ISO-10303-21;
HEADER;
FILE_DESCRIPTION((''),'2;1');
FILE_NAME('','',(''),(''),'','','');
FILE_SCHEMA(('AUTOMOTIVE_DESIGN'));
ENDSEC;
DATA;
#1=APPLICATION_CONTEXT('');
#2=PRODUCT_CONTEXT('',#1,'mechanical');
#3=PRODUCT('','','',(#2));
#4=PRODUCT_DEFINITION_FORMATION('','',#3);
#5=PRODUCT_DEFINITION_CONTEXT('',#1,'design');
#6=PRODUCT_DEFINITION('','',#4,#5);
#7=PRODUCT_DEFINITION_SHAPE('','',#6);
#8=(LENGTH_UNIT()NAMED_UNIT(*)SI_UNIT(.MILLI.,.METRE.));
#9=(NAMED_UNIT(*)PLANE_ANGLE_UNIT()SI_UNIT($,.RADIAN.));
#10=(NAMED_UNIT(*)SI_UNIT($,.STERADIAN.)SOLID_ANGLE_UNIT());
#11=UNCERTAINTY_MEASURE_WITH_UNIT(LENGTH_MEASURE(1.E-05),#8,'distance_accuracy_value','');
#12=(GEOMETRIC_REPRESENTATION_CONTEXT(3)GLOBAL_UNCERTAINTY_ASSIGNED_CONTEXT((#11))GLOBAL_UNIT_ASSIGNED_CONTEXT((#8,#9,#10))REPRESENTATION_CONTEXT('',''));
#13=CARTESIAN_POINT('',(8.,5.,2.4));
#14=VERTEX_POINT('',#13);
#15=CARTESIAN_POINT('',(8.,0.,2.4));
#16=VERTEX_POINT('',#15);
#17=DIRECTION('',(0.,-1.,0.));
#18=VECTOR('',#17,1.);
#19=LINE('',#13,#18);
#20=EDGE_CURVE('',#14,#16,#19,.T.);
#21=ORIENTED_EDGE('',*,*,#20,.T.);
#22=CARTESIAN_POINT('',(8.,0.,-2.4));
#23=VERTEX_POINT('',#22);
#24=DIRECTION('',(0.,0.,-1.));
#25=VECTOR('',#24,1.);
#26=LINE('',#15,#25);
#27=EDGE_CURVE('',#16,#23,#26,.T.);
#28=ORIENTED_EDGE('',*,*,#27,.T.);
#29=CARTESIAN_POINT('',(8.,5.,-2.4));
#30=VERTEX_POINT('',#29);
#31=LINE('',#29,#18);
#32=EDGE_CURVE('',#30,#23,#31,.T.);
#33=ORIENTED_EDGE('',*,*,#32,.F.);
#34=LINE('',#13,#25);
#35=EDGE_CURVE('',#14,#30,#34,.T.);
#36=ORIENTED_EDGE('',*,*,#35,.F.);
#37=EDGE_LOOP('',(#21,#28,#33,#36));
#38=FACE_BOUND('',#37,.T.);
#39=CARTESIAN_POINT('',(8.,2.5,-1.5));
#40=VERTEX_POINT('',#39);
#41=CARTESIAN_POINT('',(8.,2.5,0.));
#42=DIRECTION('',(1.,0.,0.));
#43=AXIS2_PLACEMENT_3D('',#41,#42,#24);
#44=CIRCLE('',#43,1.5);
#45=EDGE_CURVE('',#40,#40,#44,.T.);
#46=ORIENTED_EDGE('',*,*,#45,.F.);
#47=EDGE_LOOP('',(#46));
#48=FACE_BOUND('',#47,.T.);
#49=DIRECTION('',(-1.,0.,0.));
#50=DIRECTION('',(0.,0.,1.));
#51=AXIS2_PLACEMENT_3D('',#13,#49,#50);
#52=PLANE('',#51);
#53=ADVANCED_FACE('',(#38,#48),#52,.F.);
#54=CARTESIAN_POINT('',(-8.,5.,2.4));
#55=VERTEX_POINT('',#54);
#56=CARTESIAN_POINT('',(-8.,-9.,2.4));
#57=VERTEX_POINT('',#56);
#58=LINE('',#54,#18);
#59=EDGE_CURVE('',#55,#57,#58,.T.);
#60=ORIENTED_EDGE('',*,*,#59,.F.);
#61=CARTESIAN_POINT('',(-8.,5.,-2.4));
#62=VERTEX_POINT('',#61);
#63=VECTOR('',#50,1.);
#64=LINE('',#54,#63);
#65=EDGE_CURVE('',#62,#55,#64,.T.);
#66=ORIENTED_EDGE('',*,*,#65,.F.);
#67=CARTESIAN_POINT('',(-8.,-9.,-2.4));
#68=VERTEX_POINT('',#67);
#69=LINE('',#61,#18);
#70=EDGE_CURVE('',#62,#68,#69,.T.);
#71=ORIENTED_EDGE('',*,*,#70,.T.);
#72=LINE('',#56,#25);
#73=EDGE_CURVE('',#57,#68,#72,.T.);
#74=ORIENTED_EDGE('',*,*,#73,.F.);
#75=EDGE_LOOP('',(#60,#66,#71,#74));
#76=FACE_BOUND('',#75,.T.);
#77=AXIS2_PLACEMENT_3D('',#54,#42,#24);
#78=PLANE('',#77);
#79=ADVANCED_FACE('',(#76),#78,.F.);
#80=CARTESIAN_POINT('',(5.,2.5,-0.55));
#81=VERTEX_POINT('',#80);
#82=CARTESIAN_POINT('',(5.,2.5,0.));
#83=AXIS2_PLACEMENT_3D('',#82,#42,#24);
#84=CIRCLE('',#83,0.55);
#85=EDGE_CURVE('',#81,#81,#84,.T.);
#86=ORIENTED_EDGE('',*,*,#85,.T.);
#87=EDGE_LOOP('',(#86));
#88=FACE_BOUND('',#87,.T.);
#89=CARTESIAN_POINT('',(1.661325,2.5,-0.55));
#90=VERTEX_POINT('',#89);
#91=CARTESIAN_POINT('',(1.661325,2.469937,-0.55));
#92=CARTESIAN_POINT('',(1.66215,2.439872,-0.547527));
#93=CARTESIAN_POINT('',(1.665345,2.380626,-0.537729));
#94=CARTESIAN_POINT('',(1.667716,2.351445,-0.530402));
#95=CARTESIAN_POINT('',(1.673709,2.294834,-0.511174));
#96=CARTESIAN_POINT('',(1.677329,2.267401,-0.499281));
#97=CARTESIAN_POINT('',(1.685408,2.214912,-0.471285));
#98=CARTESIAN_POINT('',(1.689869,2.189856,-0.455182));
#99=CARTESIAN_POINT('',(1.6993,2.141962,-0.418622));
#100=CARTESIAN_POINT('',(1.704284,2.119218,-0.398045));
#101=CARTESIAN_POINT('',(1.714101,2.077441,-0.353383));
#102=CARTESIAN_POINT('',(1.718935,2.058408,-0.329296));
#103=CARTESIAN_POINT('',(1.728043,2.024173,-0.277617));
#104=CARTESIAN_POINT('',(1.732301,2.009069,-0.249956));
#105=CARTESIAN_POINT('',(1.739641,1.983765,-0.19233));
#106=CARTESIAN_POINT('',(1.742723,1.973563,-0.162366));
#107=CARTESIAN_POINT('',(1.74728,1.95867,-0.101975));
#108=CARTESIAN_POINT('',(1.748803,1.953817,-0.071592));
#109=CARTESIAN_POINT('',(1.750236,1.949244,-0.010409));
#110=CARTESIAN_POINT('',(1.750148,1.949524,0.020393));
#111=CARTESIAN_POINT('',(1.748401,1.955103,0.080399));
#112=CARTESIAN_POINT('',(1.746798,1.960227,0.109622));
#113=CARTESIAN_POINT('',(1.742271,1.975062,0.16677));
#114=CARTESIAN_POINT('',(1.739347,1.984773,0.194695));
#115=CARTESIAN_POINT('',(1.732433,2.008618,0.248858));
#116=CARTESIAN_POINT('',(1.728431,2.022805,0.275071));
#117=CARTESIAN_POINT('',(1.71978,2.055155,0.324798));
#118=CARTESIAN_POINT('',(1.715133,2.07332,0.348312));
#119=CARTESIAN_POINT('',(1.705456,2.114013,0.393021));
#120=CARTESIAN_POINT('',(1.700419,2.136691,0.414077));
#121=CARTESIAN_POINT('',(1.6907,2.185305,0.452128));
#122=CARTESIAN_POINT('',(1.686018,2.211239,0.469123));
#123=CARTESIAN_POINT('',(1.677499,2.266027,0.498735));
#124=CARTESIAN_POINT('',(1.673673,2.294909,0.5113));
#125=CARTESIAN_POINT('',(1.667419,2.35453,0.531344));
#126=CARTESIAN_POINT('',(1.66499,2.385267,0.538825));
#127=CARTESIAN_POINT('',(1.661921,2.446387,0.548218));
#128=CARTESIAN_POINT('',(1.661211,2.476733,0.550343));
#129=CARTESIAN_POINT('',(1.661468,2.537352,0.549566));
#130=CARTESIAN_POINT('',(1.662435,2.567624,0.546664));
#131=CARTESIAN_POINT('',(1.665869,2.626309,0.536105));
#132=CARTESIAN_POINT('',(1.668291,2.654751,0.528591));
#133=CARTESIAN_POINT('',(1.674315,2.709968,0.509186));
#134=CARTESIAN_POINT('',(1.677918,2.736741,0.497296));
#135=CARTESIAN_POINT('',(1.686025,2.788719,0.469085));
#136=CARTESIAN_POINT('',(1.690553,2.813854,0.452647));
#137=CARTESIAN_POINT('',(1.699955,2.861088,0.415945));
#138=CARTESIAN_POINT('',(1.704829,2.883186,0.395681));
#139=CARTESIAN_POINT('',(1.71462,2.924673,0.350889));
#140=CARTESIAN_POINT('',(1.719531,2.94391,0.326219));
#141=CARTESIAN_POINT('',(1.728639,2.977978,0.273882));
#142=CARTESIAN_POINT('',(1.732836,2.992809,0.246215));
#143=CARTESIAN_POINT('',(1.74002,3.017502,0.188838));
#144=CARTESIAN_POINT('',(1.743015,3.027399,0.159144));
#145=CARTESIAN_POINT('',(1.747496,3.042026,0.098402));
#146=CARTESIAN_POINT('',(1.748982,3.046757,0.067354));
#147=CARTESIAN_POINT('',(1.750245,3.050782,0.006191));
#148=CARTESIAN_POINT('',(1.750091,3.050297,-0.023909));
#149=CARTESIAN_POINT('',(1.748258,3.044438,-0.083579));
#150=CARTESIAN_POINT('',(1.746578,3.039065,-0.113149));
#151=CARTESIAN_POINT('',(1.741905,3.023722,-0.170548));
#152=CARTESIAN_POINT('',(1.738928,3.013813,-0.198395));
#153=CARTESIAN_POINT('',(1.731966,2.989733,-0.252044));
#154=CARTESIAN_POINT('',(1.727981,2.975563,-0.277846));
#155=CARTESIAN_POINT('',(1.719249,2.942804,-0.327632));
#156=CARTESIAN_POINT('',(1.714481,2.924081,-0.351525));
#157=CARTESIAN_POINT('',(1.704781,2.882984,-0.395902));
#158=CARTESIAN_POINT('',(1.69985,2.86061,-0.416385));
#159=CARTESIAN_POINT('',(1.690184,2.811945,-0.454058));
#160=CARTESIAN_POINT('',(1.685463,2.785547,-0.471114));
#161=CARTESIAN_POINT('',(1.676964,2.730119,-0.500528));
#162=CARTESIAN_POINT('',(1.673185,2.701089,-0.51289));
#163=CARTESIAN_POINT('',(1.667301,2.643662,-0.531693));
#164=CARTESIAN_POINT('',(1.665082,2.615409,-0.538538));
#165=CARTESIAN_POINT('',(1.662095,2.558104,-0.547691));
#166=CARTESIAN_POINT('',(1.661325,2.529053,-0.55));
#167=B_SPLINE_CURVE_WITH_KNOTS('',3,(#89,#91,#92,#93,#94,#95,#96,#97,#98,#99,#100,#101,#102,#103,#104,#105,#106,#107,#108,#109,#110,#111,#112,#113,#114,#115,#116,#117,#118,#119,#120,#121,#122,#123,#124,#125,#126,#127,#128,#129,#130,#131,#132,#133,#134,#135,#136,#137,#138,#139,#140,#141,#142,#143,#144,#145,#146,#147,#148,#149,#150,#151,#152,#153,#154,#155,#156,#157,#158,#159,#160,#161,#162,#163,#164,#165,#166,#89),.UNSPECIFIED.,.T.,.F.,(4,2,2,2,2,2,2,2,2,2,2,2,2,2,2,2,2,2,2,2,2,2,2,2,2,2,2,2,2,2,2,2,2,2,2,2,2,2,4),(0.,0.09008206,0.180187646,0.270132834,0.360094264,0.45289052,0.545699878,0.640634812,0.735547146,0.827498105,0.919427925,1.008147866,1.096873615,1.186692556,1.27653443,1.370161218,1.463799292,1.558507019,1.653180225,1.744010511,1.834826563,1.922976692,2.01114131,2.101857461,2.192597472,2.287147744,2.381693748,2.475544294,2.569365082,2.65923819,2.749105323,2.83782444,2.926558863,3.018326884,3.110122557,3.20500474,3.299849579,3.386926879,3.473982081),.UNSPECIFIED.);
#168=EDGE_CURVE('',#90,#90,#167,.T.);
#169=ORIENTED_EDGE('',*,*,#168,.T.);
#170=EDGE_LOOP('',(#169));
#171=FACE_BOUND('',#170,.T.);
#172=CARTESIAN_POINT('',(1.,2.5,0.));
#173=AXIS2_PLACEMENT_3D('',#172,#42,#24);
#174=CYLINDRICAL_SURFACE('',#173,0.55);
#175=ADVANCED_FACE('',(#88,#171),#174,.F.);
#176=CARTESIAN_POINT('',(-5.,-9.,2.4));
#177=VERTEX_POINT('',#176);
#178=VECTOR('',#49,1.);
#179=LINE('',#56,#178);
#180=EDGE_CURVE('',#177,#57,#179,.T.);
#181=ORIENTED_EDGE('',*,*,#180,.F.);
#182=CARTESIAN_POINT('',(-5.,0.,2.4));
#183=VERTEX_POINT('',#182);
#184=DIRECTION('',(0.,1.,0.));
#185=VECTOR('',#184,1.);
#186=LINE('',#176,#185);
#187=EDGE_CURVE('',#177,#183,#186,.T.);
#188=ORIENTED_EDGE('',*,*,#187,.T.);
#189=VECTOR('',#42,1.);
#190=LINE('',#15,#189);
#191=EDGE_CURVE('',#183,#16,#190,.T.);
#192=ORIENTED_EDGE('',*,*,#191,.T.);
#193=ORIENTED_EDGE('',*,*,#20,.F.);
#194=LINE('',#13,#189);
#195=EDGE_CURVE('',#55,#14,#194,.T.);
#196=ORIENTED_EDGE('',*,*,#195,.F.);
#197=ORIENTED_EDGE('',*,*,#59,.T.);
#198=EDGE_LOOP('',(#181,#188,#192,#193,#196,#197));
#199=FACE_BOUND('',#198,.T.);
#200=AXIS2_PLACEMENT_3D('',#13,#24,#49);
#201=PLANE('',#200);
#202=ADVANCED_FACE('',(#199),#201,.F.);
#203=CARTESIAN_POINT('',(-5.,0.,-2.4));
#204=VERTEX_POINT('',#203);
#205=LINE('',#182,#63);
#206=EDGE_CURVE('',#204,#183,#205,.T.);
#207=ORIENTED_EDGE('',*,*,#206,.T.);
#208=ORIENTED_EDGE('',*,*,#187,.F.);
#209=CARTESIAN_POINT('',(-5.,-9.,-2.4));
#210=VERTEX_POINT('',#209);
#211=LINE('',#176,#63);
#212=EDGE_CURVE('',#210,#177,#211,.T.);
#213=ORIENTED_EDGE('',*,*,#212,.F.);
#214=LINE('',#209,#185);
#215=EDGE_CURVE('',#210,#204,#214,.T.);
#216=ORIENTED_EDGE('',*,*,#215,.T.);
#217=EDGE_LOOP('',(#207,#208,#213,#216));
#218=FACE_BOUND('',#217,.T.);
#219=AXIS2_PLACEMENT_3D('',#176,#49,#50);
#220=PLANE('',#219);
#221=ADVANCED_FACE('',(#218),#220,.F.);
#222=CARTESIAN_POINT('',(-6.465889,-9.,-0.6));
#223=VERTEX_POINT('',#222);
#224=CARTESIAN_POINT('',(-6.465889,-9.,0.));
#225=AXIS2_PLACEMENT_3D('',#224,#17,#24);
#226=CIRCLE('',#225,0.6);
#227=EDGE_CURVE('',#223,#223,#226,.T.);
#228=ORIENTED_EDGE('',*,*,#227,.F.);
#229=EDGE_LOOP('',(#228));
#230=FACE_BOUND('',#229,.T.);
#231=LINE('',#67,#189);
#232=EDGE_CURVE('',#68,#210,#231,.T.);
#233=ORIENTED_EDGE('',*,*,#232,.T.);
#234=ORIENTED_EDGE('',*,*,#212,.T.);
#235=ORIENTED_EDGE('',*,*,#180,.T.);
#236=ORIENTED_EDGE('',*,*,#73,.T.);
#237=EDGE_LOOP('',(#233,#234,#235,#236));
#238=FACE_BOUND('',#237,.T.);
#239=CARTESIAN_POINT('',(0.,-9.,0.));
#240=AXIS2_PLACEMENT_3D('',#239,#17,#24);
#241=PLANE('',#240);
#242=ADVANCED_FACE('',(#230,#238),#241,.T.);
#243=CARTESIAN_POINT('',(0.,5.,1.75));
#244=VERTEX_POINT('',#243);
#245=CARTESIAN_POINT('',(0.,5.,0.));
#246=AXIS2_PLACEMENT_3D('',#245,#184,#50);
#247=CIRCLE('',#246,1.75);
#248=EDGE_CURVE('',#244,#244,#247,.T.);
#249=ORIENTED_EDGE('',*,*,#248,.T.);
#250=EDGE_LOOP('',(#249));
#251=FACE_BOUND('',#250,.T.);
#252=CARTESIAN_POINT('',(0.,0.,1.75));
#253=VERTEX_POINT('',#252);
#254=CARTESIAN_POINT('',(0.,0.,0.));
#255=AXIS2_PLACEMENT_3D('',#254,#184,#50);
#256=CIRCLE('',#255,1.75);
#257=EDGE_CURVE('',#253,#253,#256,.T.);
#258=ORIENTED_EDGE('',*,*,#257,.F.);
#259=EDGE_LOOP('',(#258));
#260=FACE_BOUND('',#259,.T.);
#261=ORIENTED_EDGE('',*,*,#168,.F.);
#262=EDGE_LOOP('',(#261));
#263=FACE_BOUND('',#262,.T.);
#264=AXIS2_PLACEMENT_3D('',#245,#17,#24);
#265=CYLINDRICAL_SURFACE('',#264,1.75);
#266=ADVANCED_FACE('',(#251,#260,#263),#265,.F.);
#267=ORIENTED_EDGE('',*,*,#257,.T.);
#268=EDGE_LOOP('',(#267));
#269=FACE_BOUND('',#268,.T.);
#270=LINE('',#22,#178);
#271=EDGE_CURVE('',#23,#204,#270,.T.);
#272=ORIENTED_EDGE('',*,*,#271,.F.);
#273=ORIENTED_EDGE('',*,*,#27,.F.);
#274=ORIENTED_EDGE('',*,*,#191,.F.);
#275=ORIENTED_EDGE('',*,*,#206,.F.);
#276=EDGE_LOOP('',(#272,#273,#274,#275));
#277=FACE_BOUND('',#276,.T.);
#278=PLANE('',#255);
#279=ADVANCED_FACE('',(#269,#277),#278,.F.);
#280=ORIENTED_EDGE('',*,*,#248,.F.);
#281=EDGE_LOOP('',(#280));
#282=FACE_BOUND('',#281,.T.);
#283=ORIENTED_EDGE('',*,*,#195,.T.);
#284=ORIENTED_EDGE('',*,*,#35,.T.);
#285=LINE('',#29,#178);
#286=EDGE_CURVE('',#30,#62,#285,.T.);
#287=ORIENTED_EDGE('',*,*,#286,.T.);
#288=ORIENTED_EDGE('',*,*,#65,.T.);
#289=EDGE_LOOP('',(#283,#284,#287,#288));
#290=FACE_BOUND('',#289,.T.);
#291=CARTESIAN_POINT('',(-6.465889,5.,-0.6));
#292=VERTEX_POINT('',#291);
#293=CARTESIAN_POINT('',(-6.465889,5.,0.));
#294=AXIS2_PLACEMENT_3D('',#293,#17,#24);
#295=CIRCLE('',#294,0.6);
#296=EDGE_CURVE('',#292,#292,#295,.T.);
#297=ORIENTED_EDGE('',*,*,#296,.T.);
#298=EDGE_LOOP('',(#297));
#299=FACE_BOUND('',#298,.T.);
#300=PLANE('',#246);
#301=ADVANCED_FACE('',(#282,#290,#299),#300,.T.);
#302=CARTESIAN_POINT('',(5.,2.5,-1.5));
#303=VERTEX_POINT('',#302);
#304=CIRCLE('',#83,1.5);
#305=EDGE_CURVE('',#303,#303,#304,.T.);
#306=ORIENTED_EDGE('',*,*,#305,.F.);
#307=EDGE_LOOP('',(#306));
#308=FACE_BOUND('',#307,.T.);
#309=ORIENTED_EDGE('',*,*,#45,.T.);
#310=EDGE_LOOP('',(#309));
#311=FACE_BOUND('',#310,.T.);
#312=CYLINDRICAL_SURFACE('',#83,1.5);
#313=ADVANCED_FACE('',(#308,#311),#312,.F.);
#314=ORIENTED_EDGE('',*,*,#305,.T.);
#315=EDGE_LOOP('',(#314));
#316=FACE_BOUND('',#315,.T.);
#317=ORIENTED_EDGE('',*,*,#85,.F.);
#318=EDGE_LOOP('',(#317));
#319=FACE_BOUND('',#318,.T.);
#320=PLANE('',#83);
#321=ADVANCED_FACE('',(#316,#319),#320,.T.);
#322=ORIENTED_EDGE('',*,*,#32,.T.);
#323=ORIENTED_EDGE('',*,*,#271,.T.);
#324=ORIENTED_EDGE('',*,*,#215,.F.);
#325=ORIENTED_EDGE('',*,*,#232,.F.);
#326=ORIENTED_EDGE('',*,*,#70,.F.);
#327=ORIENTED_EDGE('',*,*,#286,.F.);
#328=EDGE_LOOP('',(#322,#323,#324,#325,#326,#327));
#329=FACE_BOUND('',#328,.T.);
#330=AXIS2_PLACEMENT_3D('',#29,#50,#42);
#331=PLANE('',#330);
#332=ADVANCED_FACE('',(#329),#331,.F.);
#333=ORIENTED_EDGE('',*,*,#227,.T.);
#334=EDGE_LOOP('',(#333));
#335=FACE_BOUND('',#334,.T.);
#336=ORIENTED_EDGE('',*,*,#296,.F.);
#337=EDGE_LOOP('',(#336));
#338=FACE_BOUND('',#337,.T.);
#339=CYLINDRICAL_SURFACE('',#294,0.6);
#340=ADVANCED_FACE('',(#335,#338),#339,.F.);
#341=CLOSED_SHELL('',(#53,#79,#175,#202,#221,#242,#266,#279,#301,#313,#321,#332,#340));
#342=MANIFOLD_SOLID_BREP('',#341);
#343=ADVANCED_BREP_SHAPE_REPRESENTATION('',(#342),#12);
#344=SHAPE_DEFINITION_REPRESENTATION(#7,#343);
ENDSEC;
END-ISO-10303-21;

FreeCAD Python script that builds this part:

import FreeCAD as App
import Part
import Sketcher

V = App.Vector
Q = App.Units.Quantity


def add_polygon(sketch, points):
    """Adds a closed chain of lines whose ends are joined by coincident constraints."""
    first, n = sketch.GeometryCount, len(points)
    for a, b in zip(points, points[1:] + points[:1]):
        sketch.addGeometry(Part.LineSegment(App.Vector(*a, 0), App.Vector(*b, 0)), False)
    for i in range(n):
        sketch.addConstraint(Sketcher.Constraint("Coincident", first + i, 2, first + (i + 1) % n, 1))

doc = App.newDocument("Part")
body = doc.addObject("PartDesign::Body", "Body")

# Sketch on XZ plane
sketch1 = body.newObject("Sketcher::SketchObject", "Sketch")
sketch1.AttachmentSupport = (doc.getObject("XZ_Plane"), [""])
sketch1.MapMode = "FlatFace"
add_polygon(sketch1, [(-8, -2.4), (-8, 2.4), (8, 2.4), (8, -2.4)])  # lines 0-3
sketch1.addGeometry(Part.Circle(V(0, 0, 0), V(0, 0, 1), 1.75), False)  # 4
sketch1.addConstraint(Sketcher.Constraint("Vertical", 0))
sketch1.addConstraint(Sketcher.Constraint("Horizontal", 1))
sketch1.addConstraint(Sketcher.Constraint("Vertical", 2))
sketch1.addConstraint(Sketcher.Constraint("Horizontal", 3))
sketch1.addConstraint(Sketcher.Constraint("Coincident", 4, 3, -1, 1))
sketch1.addConstraint(Sketcher.Constraint("Symmetric", 0, 2, 2, 2, -1, 1))
sketch1.addConstraint(Sketcher.Constraint("Diameter", 4, Q("3.5 mm")))
sketch1.addConstraint(Sketcher.Constraint("DistanceX", 1, 1, 1, 2, Q("16 mm")))
sketch1.addConstraint(Sketcher.Constraint("DistanceY", 0, 1, 0, 2, Q("4.8 mm")))
pad1 = body.newObject("PartDesign::Pad", "Pad")
pad1.Profile = sketch1
pad1.Length = 5
pad1.Reversed = True

# Sketch on YZ plane
sketch2 = body.newObject("Sketcher::SketchObject", "Sketch001")
sketch2.AttachmentSupport = (doc.getObject("YZ_Plane"), [""])
sketch2.MapMode = "FlatFace"
sketch2.AttachmentOffset = App.Placement(V(0, 0, 8), App.Rotation())
sketch2.addGeometry(Part.Circle(V(2.5, 0, 0), V(0, 0, 1), 1.5), False)
sketch2.addConstraint(Sketcher.Constraint("PointOnObject", 0, 3, -1))
sketch2.addConstraint(Sketcher.Constraint("Diameter", 0, Q("3 mm")))
sketch2.addConstraint(Sketcher.Constraint("DistanceX", -1, 1, 0, 3, Q("2.5 mm")))
pocket1 = body.newObject("PartDesign::Pocket", "Pocket")
pocket1.Profile = sketch2
pocket1.Length = 3

# Sketch on YZ plane
sketch3 = body.newObject("Sketcher::SketchObject", "Sketch002")
sketch3.AttachmentSupport = (doc.getObject("YZ_Plane"), [""])
sketch3.MapMode = "FlatFace"
sketch3.AttachmentOffset = App.Placement(V(0, 0, 5), App.Rotation())
sketch3.addGeometry(Part.Circle(V(2.5, 0, 0), V(0, 0, 1), 0.55), False)
sketch3.addConstraint(Sketcher.Constraint("PointOnObject", 0, 3, -1))
sketch3.addConstraint(Sketcher.Constraint("Diameter", 0, Q("1.1 mm")))
sketch3.addConstraint(Sketcher.Constraint("DistanceX", -1, 1, 0, 3, Q("2.5 mm")))
pocket2 = body.newObject("PartDesign::Pocket", "Pocket001")
pocket2.Profile = sketch3
pocket2.Length = 4

# Sketch on XZ plane
sketch4 = body.newObject("Sketcher::SketchObject", "Sketch003")
sketch4.AttachmentSupport = (doc.getObject("XZ_Plane"), [""])
sketch4.MapMode = "FlatFace"
add_polygon(sketch4, [(-8, 2.4), (-8, -2.4), (-5, -2.4), (-5, 2.4)])  # lines 0-3
sketch4.addConstraint(Sketcher.Constraint("Vertical", 0))
sketch4.addConstraint(Sketcher.Constraint("Horizontal", 1))
sketch4.addConstraint(Sketcher.Constraint("Vertical", 2))
sketch4.addConstraint(Sketcher.Constraint("Horizontal", 3))
sketch4.addConstraint(Sketcher.Constraint("DistanceX", 1, 1, 1, 2, Q("3 mm")))
sketch4.addConstraint(Sketcher.Constraint("DistanceY", 0, 2, 0, 1, Q("4.8 mm")))
sketch4.addConstraint(Sketcher.Constraint("DistanceX", 0, 2, -1, 1, Q("8 mm")))
sketch4.addConstraint(Sketcher.Constraint("DistanceY", 0, 2, -1, 1, Q("2.4 mm")))
pad2 = body.newObject("PartDesign::Pad", "Pad001")
pad2.Profile = sketch4
pad2.Length = 9

# Sketch on XZ plane
sketch5 = body.newObject("Sketcher::SketchObject", "Sketch004")
sketch5.AttachmentSupport = (doc.getObject("XZ_Plane"), [""])
sketch5.MapMode = "FlatFace"
sketch5.AttachmentOffset = App.Placement(V(0, 0, 9), App.Rotation())
sketch5.addGeometry(Part.Circle(V(-6.465889, 0, 0), V(0, 0, 1), 0.6), False)
sketch5.addConstraint(Sketcher.Constraint("PointOnObject", 0, 3, -1))
sketch5.addConstraint(Sketcher.Constraint("Diameter", 0, Q("1.2 mm")))
sketch5.addConstraint(Sketcher.Constraint("DistanceX", 0, 3, -1, 1, Q("6.465889 mm")))
pocket3 = body.newObject("PartDesign::Pocket", "Pocket002")
pocket3.Profile = sketch5
pocket3.Type = "ThroughAll"

doc.recompute()
